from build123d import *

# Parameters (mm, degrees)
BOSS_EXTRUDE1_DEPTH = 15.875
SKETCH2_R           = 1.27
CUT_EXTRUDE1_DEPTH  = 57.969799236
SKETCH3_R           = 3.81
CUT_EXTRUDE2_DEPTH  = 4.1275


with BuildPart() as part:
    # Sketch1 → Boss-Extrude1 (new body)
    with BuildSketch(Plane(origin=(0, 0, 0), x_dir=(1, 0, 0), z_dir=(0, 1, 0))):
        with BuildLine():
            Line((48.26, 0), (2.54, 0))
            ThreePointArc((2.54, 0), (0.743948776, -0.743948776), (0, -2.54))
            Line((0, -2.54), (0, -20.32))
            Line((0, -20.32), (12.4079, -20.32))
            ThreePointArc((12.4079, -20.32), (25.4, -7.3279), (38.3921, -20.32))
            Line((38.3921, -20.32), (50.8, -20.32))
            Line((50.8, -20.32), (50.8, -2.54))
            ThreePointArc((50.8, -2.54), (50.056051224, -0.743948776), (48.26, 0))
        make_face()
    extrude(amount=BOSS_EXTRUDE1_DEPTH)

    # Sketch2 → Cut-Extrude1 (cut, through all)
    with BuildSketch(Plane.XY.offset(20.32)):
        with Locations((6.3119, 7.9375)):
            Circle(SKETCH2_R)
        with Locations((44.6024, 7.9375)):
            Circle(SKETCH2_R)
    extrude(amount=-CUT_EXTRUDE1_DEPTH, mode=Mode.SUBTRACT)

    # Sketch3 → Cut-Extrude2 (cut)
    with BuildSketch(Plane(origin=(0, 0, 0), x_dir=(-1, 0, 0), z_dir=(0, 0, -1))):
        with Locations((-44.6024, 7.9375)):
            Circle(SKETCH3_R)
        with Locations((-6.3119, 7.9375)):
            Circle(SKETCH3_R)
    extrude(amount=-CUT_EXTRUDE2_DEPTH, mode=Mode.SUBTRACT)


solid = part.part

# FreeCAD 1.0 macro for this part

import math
import FreeCAD as App
import Part
import Sketcher

V = App.Vector
Q = App.Units.Quantity

doc = App.newDocument("Part")
body = doc.addObject("PartDesign::Body", "Body")

sketch1 = body.newObject("Sketcher::SketchObject", "Sketch")
sketch1.AttachmentSupport = (doc.getObject("XZ_Plane"), [""])
sketch1.MapMode = "FlatFace"
sketch1.addGeometry(Part.LineSegment(V(48.3, 0, 0), V(2.5, 0, 0)), False)
sketch1.addGeometry(Part.ArcOfCircle(Part.Circle(V(2.5, 2.5, 0), V(0, 0, 1), 2.5), math.radians(-180), math.radians(-90)), False)
sketch1.addGeometry(Part.LineSegment(V(0, 2.5, 0), V(0, 20.3, 0)), False)
sketch1.addGeometry(Part.LineSegment(V(0, 20.3, 0), V(12.4, 20.3, 0)), False)
sketch1.addGeometry(Part.ArcOfCircle(Part.Circle(V(25.4, 20.3, 0), V(0, 0, 1), 13), math.radians(180), math.radians(360)), False)
sketch1.addGeometry(Part.LineSegment(V(38.4, 20.3, 0), V(50.8, 20.3, 0)), False)
sketch1.addGeometry(Part.LineSegment(V(50.8, 20.3, 0), V(50.8, 2.5, 0)), False)
sketch1.addGeometry(Part.ArcOfCircle(Part.Circle(V(48.3, 2.5, 0), V(0, 0, 1), 2.5), math.radians(-90), math.radians(0)), False)
sketch1.addConstraint(Sketcher.Constraint("Tangent", 0, 2, 1, 2))
sketch1.addConstraint(Sketcher.Constraint("Tangent", 1, 1, 2, 1))
sketch1.addConstraint(Sketcher.Constraint("Coincident", 2, 2, 3, 1))
sketch1.addConstraint(Sketcher.Constraint("Coincident", 3, 2, 4, 1))
sketch1.addConstraint(Sketcher.Constraint("Coincident", 4, 2, 5, 1))
sketch1.addConstraint(Sketcher.Constraint("Coincident", 5, 2, 6, 1))
sketch1.addConstraint(Sketcher.Constraint("Tangent", 6, 2, 7, 2))
sketch1.addConstraint(Sketcher.Constraint("Tangent", 7, 1, 0, 1))
sketch1.addConstraint(Sketcher.Constraint("Horizontal", 0))
sketch1.addConstraint(Sketcher.Constraint("Vertical", 2))
sketch1.addConstraint(Sketcher.Constraint("Horizontal", 3))
sketch1.addConstraint(Sketcher.Constraint("Horizontal", 5))
sketch1.addConstraint(Sketcher.Constraint("Vertical", 6))
sketch1.addConstraint(Sketcher.Constraint("Equal", 1, 7))
sketch1.addConstraint(Sketcher.Constraint("PointOnObject", 0, 2, -1))
sketch1.addConstraint(Sketcher.Constraint("PointOnObject", 1, 1, -2))
sketch1.addConstraint(Sketcher.Constraint("Horizontal", 4, 3, 2, 2))
sketch1.addConstraint(Sketcher.Constraint("Horizontal", 3, 2, 4, 2))
sketch1.addConstraint(Sketcher.Constraint("Equal", 3, 5))
sketch1.addConstraint(Sketcher.Constraint("Radius", 1, Q("0.1 in")))
sketch1.addConstraint(Sketcher.Constraint("DistanceX", 0, 2, 0, 1, Q("1.8 in")))
sketch1.addConstraint(Sketcher.Constraint("DistanceY", 2, 1, 2, 2, Q("0.7 in")))
sketch1.addConstraint(Sketcher.Constraint("Radius", 4, Q("0.5115 in")))
pad1 = body.newObject("PartDesign::Pad", "Pad")
pad1.Profile = sketch1
pad1.Length = Q("0.625 in")
pad1.Reversed = True

sketch2 = body.newObject("Sketcher::SketchObject", "Sketch001")
sketch2.AttachmentSupport = (doc.getObject("XY_Plane"), [""])
sketch2.MapMode = "FlatFace"
sketch2.AttachmentOffset = App.Placement(V(0, 0, 0.8 * 25.4), App.Rotation())
sketch2.addGeometry(Part.Circle(V(6.3, 7.9, 0), V(0, 0, 1), 1.3), False)
sketch2.addGeometry(Part.Circle(V(44.6, 7.9, 0), V(0, 0, 1), 1.3), False)
sketch2.addConstraint(Sketcher.Constraint("Equal", 0, 1))
sketch2.addConstraint(Sketcher.Constraint("Horizontal", 0, 3, 1, 3))
sketch2.addConstraint(Sketcher.Constraint("Diameter", 0, Q("0.1 in")))
sketch2.addConstraint(Sketcher.Constraint("DistanceY", -1, 1, 0, 3, Q("0.3125 in")))
sketch2.addConstraint(Sketcher.Constraint("DistanceX", -1, 1, 1, 3, Q("1.756 in")))
sketch2.addConstraint(Sketcher.Constraint("DistanceX", -1, 1, 0, 3, Q("0.2485 in")))
pocket1 = body.newObject("PartDesign::Pocket", "Pocket")
pocket1.Profile = sketch2
pocket1.Type = "ThroughAll"

sketch3 = body.newObject("Sketcher::SketchObject", "Sketch002")
sketch3.AttachmentSupport = (doc.getObject("XY_Plane"), [""])
sketch3.MapMode = "FlatFace"
sketch3.addGeometry(Part.Circle(V(44.6, 7.9, 0), V(0, 0, 1), 3.8), False)
sketch3.addGeometry(Part.Circle(V(6.3, 7.9, 0), V(0, 0, 1), 3.8), False)
sketch3.addConstraint(Sketcher.Constraint("Equal", 0, 1))
sketch3.addConstraint(Sketcher.Constraint("Horizontal", 0, 3, 1, 3))
sketch3.addConstraint(Sketcher.Constraint("Diameter", 0, Q("0.3 in")))
sketch3.addConstraint(Sketcher.Constraint("DistanceX", -1, 1, 0, 3, Q("1.756 in")))
sketch3.addConstraint(Sketcher.Constraint("DistanceY", -1, 1, 0, 3, Q("0.3125 in")))
sketch3.addConstraint(Sketcher.Constraint("DistanceX", -1, 1, 1, 3, Q("0.2485 in")))
pocket2 = body.newObject("PartDesign::Pocket", "Pocket001")
pocket2.Profile = sketch3
pocket2.Length = Q("0.1625 in")
pocket2.Reversed = True

doc.recompute()
